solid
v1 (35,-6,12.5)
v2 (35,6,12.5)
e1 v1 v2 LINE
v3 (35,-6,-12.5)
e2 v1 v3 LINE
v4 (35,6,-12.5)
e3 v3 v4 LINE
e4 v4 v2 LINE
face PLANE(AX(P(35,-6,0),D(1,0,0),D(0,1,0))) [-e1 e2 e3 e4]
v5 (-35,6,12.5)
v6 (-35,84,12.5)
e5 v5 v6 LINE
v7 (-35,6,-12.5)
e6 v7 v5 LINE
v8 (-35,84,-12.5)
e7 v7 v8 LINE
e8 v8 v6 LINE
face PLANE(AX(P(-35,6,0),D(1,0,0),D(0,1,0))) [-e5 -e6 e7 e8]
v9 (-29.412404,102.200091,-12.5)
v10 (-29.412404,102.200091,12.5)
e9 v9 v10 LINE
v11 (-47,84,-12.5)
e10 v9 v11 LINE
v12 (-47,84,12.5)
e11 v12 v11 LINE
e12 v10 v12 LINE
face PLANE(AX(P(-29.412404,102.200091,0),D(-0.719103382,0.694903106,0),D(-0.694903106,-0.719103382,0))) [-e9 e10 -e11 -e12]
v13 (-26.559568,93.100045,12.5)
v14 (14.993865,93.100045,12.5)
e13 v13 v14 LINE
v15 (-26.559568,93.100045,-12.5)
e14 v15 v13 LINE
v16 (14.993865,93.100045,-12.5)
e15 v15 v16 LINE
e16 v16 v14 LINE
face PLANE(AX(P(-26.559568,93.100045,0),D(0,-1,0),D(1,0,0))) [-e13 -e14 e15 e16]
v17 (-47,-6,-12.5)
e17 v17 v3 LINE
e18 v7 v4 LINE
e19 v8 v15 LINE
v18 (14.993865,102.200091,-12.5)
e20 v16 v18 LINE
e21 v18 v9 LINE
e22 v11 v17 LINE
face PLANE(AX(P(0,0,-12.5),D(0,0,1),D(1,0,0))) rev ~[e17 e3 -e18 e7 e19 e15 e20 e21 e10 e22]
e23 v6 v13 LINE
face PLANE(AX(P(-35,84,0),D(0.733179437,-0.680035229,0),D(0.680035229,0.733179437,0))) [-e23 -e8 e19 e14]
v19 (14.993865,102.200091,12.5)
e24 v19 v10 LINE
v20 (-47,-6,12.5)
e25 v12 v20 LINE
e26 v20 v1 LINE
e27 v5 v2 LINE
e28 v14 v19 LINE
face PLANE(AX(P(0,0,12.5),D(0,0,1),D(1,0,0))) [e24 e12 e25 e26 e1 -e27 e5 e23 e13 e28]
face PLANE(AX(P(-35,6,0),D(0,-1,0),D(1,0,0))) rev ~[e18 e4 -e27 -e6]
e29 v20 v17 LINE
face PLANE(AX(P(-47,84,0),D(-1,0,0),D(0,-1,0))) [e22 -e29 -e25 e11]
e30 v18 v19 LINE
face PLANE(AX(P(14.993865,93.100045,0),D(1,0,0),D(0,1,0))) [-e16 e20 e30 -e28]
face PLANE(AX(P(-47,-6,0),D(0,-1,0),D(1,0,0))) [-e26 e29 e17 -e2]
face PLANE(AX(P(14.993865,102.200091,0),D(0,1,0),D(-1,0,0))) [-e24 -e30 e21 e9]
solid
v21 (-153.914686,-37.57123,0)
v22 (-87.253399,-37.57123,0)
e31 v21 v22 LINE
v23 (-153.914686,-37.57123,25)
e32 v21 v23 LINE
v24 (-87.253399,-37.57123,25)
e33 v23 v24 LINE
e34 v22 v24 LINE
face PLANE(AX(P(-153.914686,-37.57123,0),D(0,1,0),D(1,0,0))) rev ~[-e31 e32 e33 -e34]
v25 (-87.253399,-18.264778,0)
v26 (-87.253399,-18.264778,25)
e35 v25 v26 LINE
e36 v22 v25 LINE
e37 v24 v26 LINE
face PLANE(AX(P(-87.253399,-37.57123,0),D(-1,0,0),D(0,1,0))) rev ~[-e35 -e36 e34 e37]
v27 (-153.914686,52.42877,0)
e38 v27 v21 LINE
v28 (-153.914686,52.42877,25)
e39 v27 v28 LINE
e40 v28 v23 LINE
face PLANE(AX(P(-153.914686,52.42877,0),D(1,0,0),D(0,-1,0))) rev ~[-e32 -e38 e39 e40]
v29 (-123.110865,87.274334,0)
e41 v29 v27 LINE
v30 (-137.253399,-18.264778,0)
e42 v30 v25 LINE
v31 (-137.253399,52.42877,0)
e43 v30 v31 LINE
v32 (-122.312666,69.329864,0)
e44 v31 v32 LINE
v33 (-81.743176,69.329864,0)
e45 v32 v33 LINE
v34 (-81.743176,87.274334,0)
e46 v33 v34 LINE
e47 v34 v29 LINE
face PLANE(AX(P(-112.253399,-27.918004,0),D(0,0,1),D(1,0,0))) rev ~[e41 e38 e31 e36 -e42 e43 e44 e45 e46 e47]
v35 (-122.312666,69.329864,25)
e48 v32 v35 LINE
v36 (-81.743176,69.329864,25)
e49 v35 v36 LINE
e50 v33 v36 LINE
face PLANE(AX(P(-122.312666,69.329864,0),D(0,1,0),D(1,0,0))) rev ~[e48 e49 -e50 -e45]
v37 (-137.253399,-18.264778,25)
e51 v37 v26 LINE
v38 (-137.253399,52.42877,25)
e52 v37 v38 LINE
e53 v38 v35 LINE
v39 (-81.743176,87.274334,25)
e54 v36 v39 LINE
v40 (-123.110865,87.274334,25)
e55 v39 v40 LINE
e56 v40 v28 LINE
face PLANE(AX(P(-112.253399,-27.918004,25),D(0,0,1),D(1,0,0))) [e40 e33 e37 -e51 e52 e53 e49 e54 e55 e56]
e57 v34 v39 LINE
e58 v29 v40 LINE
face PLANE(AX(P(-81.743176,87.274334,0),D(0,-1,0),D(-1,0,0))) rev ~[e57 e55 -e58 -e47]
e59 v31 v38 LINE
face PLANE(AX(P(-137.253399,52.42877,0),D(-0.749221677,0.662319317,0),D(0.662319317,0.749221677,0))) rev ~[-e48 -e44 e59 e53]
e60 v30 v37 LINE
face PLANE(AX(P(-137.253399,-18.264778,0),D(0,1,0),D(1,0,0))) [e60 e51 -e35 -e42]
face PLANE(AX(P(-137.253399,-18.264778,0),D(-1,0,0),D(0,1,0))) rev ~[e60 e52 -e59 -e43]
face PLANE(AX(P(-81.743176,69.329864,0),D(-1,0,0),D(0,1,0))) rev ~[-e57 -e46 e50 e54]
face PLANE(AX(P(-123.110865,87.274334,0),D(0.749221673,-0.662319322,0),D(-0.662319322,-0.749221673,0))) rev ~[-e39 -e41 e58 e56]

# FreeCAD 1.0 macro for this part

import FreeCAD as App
import Part
import Sketcher


def add_polygon(sketch, points):
    """Adds a closed chain of lines whose ends are joined by coincident constraints."""
    first, n = sketch.GeometryCount, len(points)
    for a, b in zip(points, points[1:] + points[:1]):
        sketch.addGeometry(Part.LineSegment(App.Vector(*a, 0), App.Vector(*b, 0)), False)
    for i in range(n):
        sketch.addConstraint(Sketcher.Constraint("Coincident", first + i, 2, first + (i + 1) % n, 1))

doc = App.newDocument("Part")
body = doc.addObject("PartDesign::Body", "Body")

# Sketch on XY plane
sketch1 = doc.addObject("Sketcher::SketchObject", "Sketch")
body.addObject(sketch1)
sketch1.AttachmentSupport = (doc.XY_Plane, [""])
sketch1.MapMode = "FlatFace"
add_polygon(sketch1, [(35, -6), (35, 6), (-35, 6), (-35, 84), (-26.559568, 93.100045), (14.993865, 93.100045), (14.993865, 102.200091), (-29.412404, 102.200091), (-47, 84), (-47, -6)])  # lines 0-9
sketch1.addConstraint(Sketcher.Constraint("Vertical", 0))
sketch1.addConstraint(Sketcher.Constraint("Horizontal", 1))
sketch1.addConstraint(Sketcher.Constraint("Vertical", 2))
sketch1.addConstraint(Sketcher.Constraint("Horizontal", 4))
sketch1.addConstraint(Sketcher.Constraint("Vertical", 5))
sketch1.addConstraint(Sketcher.Constraint("Horizontal", 6))
sketch1.addConstraint(Sketcher.Constraint("Vertical", 8))
sketch1.addConstraint(Sketcher.Constraint("Horizontal", 9))
sketch1.addConstraint(Sketcher.Constraint("Symmetric", 1, 2, 9, 2, -1, 1))
sketch1.addConstraint(Sketcher.Constraint("Horizontal", 2, 2, 7, 2))
sketch1.addConstraint(Sketcher.Constraint("DistanceX", 1, 2, 1, 1, 70.0))
sketch1.addConstraint(Sketcher.Constraint("DistanceX", 9, 1, 9, 2, 82.0))
sketch1.addConstraint(Sketcher.Constraint("DistanceY", 0, 1, 0, 2, 12.0))
sketch1.addConstraint(Sketcher.Constraint("DistanceY", 2, 1, 2, 2, 78.0))
sketch1.addConstraint(Sketcher.Constraint("DistanceX", 6, 2, 6, 1, 44.406269))
sketch1.addConstraint(Sketcher.Constraint("DistanceX", 4, 1, 4, 2, 41.553433))
sketch1.addConstraint(Sketcher.Constraint("DistanceY", 5, 1, 5, 2, 9.100046))
sketch1.addConstraint(Sketcher.Constraint("DistanceY", -1, 1, 5, 2, 102.200091))
sketch1.addConstraint(Sketcher.Constraint("Distance", 3, 12.411757))
pad1 = doc.addObject("PartDesign::Pad", "Pad")
body.addObject(pad1)
pad1.Profile = sketch1
pad1.Length = 25
pad1.Midplane = True
body2 = doc.addObject("PartDesign::Body", "Body001")

# Sketch on XY plane
sketch2 = doc.addObject("Sketcher::SketchObject", "Sketch001")
body2.addObject(sketch2)
sketch2.AttachmentSupport = (doc.getObject("XY_Plane001"), [""])
sketch2.MapMode = "FlatFace"
add_polygon(sketch2, [(-87.253399, -37.57123), (-87.253399, -18.264778), (-137.253399, -18.264778), (-137.253399, 52.42877), (-122.312666, 69.329864), (-81.743176, 69.329864), (-81.743176, 87.274334), (-123.110865, 87.274334), (-153.914686, 52.42877), (-153.914686, -37.57123)])  # lines 0-9
sketch2.addConstraint(Sketcher.Constraint("Vertical", 0))
sketch2.addConstraint(Sketcher.Constraint("Horizontal", 1))
sketch2.addConstraint(Sketcher.Constraint("Vertical", 2))
sketch2.addConstraint(Sketcher.Constraint("Horizontal", 4))
sketch2.addConstraint(Sketcher.Constraint("Vertical", 5))
sketch2.addConstraint(Sketcher.Constraint("Horizontal", 6))
sketch2.addConstraint(Sketcher.Constraint("Vertical", 8))
sketch2.addConstraint(Sketcher.Constraint("Horizontal", 9))
sketch2.addConstraint(Sketcher.Constraint("Parallel", 3, 7))
sketch2.addConstraint(Sketcher.Constraint("Horizontal", 2, 2, 7, 2))
sketch2.addConstraint(Sketcher.Constraint("DistanceX", 1, 2, 1, 1, 50.0))
sketch2.addConstraint(Sketcher.Constraint("DistanceY", 8, 2, 8, 1, 90.0))
sketch2.addConstraint(Sketcher.Constraint("DistanceX", 4, 1, 4, 2, 40.56949))
sketch2.addConstraint(Sketcher.Constraint("DistanceX", 6, 2, 6, 1, 41.367689))
sketch2.addConstraint(Sketcher.Constraint("DistanceY", 0, 1, 0, 2, 19.306452))
sketch2.addConstraint(Sketcher.Constraint("DistanceY", 5, 1, 5, 2, 17.94447))
sketch2.addConstraint(Sketcher.Constraint("DistanceX", 0, 2, -1, 1, 87.253399))
sketch2.addConstraint(Sketcher.Constraint("DistanceX", 9, 1, 9, 2, 66.661287))
sketch2.addConstraint(Sketcher.Constraint("DistanceY", 0, 2, -1, 1, 18.264778))
sketch2.addConstraint(Sketcher.Constraint("DistanceY", 1, 2, 3, 2, 87.594642))
pad2 = doc.addObject("PartDesign::Pad", "Pad001")
body2.addObject(pad2)
pad2.Profile = sketch2
pad2.Length = 25

doc.recompute()
